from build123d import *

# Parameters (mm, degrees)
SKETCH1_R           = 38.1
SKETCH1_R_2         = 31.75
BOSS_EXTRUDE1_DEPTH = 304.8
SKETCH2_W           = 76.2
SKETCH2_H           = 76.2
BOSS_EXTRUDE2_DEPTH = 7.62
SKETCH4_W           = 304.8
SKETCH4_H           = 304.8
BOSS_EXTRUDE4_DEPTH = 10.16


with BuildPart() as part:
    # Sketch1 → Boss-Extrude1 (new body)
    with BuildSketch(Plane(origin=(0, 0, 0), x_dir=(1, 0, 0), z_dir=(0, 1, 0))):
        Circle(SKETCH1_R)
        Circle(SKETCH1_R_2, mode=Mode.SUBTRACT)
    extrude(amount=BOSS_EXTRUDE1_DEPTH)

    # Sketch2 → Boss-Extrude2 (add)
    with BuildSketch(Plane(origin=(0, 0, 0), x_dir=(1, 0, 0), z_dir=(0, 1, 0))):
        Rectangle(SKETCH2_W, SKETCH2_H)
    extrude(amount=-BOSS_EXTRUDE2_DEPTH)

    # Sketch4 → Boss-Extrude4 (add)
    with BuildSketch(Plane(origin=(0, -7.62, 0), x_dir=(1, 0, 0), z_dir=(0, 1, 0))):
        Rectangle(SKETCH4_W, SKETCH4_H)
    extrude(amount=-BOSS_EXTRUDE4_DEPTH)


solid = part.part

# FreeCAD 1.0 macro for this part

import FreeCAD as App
import Part
import Sketcher

V = App.Vector
Q = App.Units.Quantity


def add_polygon(sketch, points):
    """Adds a closed chain of lines whose ends are joined by coincident constraints."""
    first, n = sketch.GeometryCount, len(points)
    for a, b in zip(points, points[1:] + points[:1]):
        sketch.addGeometry(Part.LineSegment(App.Vector(*a, 0), App.Vector(*b, 0)), False)
    for i in range(n):
        sketch.addConstraint(Sketcher.Constraint("Coincident", first + i, 2, first + (i + 1) % n, 1))

doc = App.newDocument("Part")
body = doc.addObject("PartDesign::Body", "Body")

# Sketch on XZ plane
sketch1 = doc.addObject("Sketcher::SketchObject", "Sketch")
body.addObject(sketch1)
sketch1.AttachmentSupport = (doc.XZ_Plane, [""])
sketch1.MapMode = "FlatFace"
sketch1.addGeometry(Part.Circle(V(0, 0, 0), V(0, 0, 1), 38), False)
sketch1.addGeometry(Part.Circle(V(0, 0, 0), V(0, 0, 1), 32), False)
sketch1.addConstraint(Sketcher.Constraint("Coincident", 0, 3, -1, 1))
sketch1.addConstraint(Sketcher.Constraint("Coincident", 1, 3, -1, 1))
sketch1.addConstraint(Sketcher.Constraint("Diameter", 0, Q("3 in")))
sketch1.addConstraint(Sketcher.Constraint("Diameter", 1, Q("2.5 in")))
pad1 = doc.addObject("PartDesign::Pad", "Pad")
body.addObject(pad1)
pad1.Profile = sketch1
pad1.Length = Q("12 in")
pad1.Reversed = True

# Sketch on XZ plane
sketch2 = doc.addObject("Sketcher::SketchObject", "Sketch001")
body.addObject(sketch2)
sketch2.AttachmentSupport = (doc.XZ_Plane, [""])
sketch2.MapMode = "FlatFace"
add_polygon(sketch2, [(-38, -38), (-38, 38), (38, 38), (38, -38)])  # lines 0-3
sketch2.addConstraint(Sketcher.Constraint("Vertical", 0))
sketch2.addConstraint(Sketcher.Constraint("Horizontal", 1))
sketch2.addConstraint(Sketcher.Constraint("Vertical", 2))
sketch2.addConstraint(Sketcher.Constraint("Horizontal", 3))
sketch2.addConstraint(Sketcher.Constraint("Symmetric", 0, 2, 2, 2, -1, 1))
sketch2.addConstraint(Sketcher.Constraint("Equal", 3, 0))
sketch2.addConstraint(Sketcher.Constraint("DistanceX", 1, 1, 1, 2, Q("3 in")))
pad2 = doc.addObject("PartDesign::Pad", "Pad001")
body.addObject(pad2)
pad2.Profile = sketch2
pad2.Length = Q("0.3 in")

# Sketch on XZ plane
sketch3 = doc.addObject("Sketcher::SketchObject", "Sketch002")
body.addObject(sketch3)
sketch3.AttachmentSupport = (doc.XZ_Plane, [""])
sketch3.MapMode = "FlatFace"
sketch3.AttachmentOffset = App.Placement(V(0, 0, 0.3 * 25.4), App.Rotation())
add_polygon(sketch3, [(-152, -152), (-152, 152), (152, 152), (152, -152)])  # lines 0-3
sketch3.addConstraint(Sketcher.Constraint("Vertical", 0))
sketch3.addConstraint(Sketcher.Constraint("Horizontal", 1))
sketch3.addConstraint(Sketcher.Constraint("Vertical", 2))
sketch3.addConstraint(Sketcher.Constraint("Horizontal", 3))
sketch3.addConstraint(Sketcher.Constraint("Symmetric", 0, 2, 2, 2, -1, 1))
sketch3.addConstraint(Sketcher.Constraint("Equal", 3, 0))
sketch3.addConstraint(Sketcher.Constraint("DistanceX", 1, 1, 1, 2, Q("12 in")))
pad3 = doc.addObject("PartDesign::Pad", "Pad002")
body.addObject(pad3)
pad3.Profile = sketch3
pad3.Length = Q("0.4 in")

doc.recompute()
